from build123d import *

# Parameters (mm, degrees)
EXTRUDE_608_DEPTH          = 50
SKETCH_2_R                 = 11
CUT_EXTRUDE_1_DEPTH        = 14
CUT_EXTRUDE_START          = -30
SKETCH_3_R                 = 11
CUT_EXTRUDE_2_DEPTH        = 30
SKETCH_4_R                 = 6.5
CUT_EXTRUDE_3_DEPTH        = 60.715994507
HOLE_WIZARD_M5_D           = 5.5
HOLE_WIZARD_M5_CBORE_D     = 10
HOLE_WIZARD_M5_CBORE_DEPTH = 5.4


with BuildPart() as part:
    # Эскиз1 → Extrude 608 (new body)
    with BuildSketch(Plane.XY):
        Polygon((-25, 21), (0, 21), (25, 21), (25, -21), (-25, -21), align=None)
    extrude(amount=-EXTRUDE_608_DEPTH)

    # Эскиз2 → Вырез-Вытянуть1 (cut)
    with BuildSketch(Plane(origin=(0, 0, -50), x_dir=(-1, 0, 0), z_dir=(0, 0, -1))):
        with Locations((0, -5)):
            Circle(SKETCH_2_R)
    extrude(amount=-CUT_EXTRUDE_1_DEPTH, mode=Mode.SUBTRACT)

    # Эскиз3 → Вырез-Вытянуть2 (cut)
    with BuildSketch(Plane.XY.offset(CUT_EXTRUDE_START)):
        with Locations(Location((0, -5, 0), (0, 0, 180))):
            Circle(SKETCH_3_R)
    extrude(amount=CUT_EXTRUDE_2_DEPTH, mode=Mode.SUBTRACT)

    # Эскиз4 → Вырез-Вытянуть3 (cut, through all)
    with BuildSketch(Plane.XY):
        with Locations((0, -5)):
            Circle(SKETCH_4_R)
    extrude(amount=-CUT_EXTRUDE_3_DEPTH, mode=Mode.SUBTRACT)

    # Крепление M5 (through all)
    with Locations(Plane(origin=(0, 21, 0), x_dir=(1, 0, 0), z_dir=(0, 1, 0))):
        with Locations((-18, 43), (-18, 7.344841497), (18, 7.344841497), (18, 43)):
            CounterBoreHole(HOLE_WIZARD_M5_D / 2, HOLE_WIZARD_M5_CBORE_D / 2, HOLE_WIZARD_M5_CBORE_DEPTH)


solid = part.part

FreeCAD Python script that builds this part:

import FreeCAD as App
import Part
import Sketcher

V = App.Vector
Q = App.Units.Quantity

doc = App.newDocument("Part")
params = doc.addObject("Spreadsheet::Sheet", "Params")
for row, (alias, value) in enumerate([
    ("sketch1_width", "50 mm"),
    ("sketch1_height", "42 mm"),
    ("pad1_length", "50 mm"),
    ("sketch2_diameter", "22 mm"),
    ("pocket1_length", "14 mm"),
    ("sketch3_diameter", "22 mm"),
    ("pocket2_length", "30 mm"),
    ("sketch4_diameter", "13 mm"),
    ("sketch5_diameter", "5.5 mm"),
    ("hole_diameter", "5.5 mm"),
    ("hole_cbore_diameter", "10 mm"),
    ("hole_cbore_depth", "5.4 mm"),
], start=1):
    params.set(f"A{row}", alias)
    params.set(f"B{row}", "=" + value)
    params.setAlias(f"B{row}", alias)

body = doc.addObject("PartDesign::Body", "Body")

# Sketch on XY plane
sketch1 = body.newObject("Sketcher::SketchObject", "Sketch")
sketch1.AttachmentSupport = (doc.getObject("XY_Plane"), [""])
sketch1.MapMode = "FlatFace"
sketch1.addGeometry([
    Part.LineSegment(V(25, 21, 0), V(-25, 21, 0)),
    Part.LineSegment(V(-25, 21, 0), V(-25, -21, 0)),
    Part.LineSegment(V(-25, -21, 0), V(25, -21, 0)),
    Part.LineSegment(V(25, -21, 0), V(25, 21, 0)),
], False)
sketch1.addConstraint([
    Sketcher.Constraint("Coincident", 0, 2, 1, 1),
    Sketcher.Constraint("Coincident", 1, 2, 2, 1),
    Sketcher.Constraint("Coincident", 2, 2, 3, 1),
    Sketcher.Constraint("Coincident", 3, 2, 0, 1),
    Sketcher.Constraint("Horizontal", 0),
    Sketcher.Constraint("Vertical", 1),
    Sketcher.Constraint("Horizontal", 2),
    Sketcher.Constraint("Vertical", 3),
    Sketcher.Constraint("Symmetric", 0, 2, 2, 2, -1, 1),
    Sketcher.Constraint("DistanceX", 0, 2, 0, 1, Q("50 mm")),
    Sketcher.Constraint("DistanceY", 1, 2, 1, 1, Q("42 mm")),
])
sketch1.setExpression("Constraints[9]", "Params.sketch1_width")
sketch1.setExpression("Constraints[10]", "Params.sketch1_height")
pad1 = body.newObject("PartDesign::Pad", "Pad")
pad1.Profile = sketch1
pad1.setExpression("Length", "Params.pad1_length")
pad1.Reversed = True

# Sketch on XY plane
sketch2 = body.newObject("Sketcher::SketchObject", "Sketch001")
sketch2.AttachmentSupport = (doc.getObject("XY_Plane"), [""])
sketch2.MapMode = "FlatFace"
sketch2.AttachmentOffset = App.Placement(V(0, 0, -50), App.Rotation())
sketch2.addGeometry(Part.Circle(V(0, -5, 0), V(0, 0, 1), 11), False)
sketch2.addConstraint([
    Sketcher.Constraint("PointOnObject", 0, 3, -2),
    Sketcher.Constraint("Diameter", 0, Q("22 mm")),
    Sketcher.Constraint("DistanceY", 0, 3, -1, 1, Q("5 mm")),
])
sketch2.setExpression("Constraints[1]", "Params.sketch2_diameter")
pocket1 = body.newObject("PartDesign::Pocket", "Pocket")
pocket1.Profile = sketch2
pocket1.setExpression("Length", "Params.pocket1_length")
pocket1.Reversed = True

# Sketch on XY plane
sketch3 = body.newObject("Sketcher::SketchObject", "Sketch002")
sketch3.AttachmentSupport = (doc.getObject("XY_Plane"), [""])
sketch3.MapMode = "FlatFace"
sketch3.AttachmentOffset = App.Placement(V(0, 0, -30), App.Rotation())
sketch3.addGeometry(Part.Circle(V(0, -5, 0), V(0, 0, 1), 11), False)
sketch3.addConstraint([
    Sketcher.Constraint("PointOnObject", 0, 3, -2),
    Sketcher.Constraint("Diameter", 0, Q("22 mm")),
    Sketcher.Constraint("DistanceY", 0, 3, -1, 1, Q("5 mm")),
])
sketch3.setExpression("Constraints[1]", "Params.sketch3_diameter")
pocket2 = body.newObject("PartDesign::Pocket", "Pocket001")
pocket2.Profile = sketch3
pocket2.setExpression("Length", "Params.pocket2_length")
pocket2.Reversed = True

# Sketch on XY plane
sketch4 = body.newObject("Sketcher::SketchObject", "Sketch003")
sketch4.AttachmentSupport = (doc.getObject("XY_Plane"), [""])
sketch4.MapMode = "FlatFace"
sketch4.addGeometry(Part.Circle(V(0, -5, 0), V(0, 0, 1), 6), False)
sketch4.addConstraint([
    Sketcher.Constraint("PointOnObject", 0, 3, -2),
    Sketcher.Constraint("Diameter", 0, Q("13 mm")),
    Sketcher.Constraint("DistanceY", 0, 3, -1, 1, Q("5 mm")),
])
sketch4.setExpression("Constraints[1]", "Params.sketch4_diameter")
pocket3 = body.newObject("PartDesign::Pocket", "Pocket002")
pocket3.Profile = sketch4
pocket3.Type = "ThroughAll"

# Sketch on XZ plane
sketch5 = body.newObject("Sketcher::SketchObject", "Sketch004")
sketch5.AttachmentSupport = (doc.getObject("XZ_Plane"), [""])
sketch5.MapMode = "FlatFace"
sketch5.AttachmentOffset = App.Placement(V(0, 0, -21), App.Rotation())
sketch5.addGeometry([
    Part.Circle(V(-18, -43, 0), V(0, 0, 1), 2.8),
    Part.Circle(V(-18, -7.3, 0), V(0, 0, 1), 2.8),
    Part.Circle(V(18, -7.3, 0), V(0, 0, 1), 2.8),
    Part.Circle(V(18, -43, 0), V(0, 0, 1), 2.8),
], False)
sketch5.addConstraint([
    Sketcher.Constraint("Equal", 0, 1),
    Sketcher.Constraint("Equal", 1, 2),
    Sketcher.Constraint("Equal", 2, 3),
    Sketcher.Constraint("Symmetric", 1, 3, 2, 3, -2),
    Sketcher.Constraint("Symmetric", 0, 3, 3, 3, -2),
    Sketcher.Constraint("Vertical", 0, 3, 1, 3),
    Sketcher.Constraint("Diameter", 0, Q("5.5 mm")),
    Sketcher.Constraint("DistanceX", 0, 3, -1, 1, Q("18 mm")),
    Sketcher.Constraint("DistanceY", 0, 3, -1, 1, Q("43 mm")),
    Sketcher.Constraint("DistanceY", 1, 3, -1, 1, Q("7.344841 mm")),
])
sketch5.setExpression("Constraints[6]", "Params.sketch5_diameter")
doc.recompute()
hole = body.newObject("PartDesign::Hole", "Hole")
hole.Profile = sketch5
hole.ThreadType = "None"
hole.setExpression("Diameter", "Params.hole_diameter")
hole.DepthType = "ThroughAll"
hole.HoleCutType = "Counterbore"
hole.setExpression("HoleCutDiameter", "Params.hole_cbore_diameter")
hole.setExpression("HoleCutDepth", "Params.hole_cbore_depth")
hole.Reversed = True

doc.recompute()
